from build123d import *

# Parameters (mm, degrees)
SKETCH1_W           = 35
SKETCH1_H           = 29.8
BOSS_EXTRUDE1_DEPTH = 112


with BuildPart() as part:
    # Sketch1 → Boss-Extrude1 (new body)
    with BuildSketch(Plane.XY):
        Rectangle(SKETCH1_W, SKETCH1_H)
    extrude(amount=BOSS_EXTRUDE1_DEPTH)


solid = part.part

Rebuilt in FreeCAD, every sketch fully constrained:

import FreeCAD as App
import Part
import Sketcher


def add_polygon(sketch, points):
    """Adds a closed chain of lines whose ends are joined by coincident constraints."""
    first, n = sketch.GeometryCount, len(points)
    for a, b in zip(points, points[1:] + points[:1]):
        sketch.addGeometry(Part.LineSegment(App.Vector(*a, 0), App.Vector(*b, 0)), False)
    for i in range(n):
        sketch.addConstraint(Sketcher.Constraint("Coincident", first + i, 2, first + (i + 1) % n, 1))

doc = App.newDocument("Part")
body = doc.addObject("PartDesign::Body", "Body")

# Sketch on XY plane
sketch1 = body.newObject("Sketcher::SketchObject", "Sketch")
sketch1.AttachmentSupport = (doc.getObject("XY_Plane"), [""])
sketch1.MapMode = "FlatFace"
add_polygon(sketch1, [(-18, 15), (-18, -15), (18, -15), (18, 15)])  # lines 0-3
sketch1.addConstraint(Sketcher.Constraint("Vertical", 0))
sketch1.addConstraint(Sketcher.Constraint("Horizontal", 1))
sketch1.addConstraint(Sketcher.Constraint("Vertical", 2))
sketch1.addConstraint(Sketcher.Constraint("Horizontal", 3))
sketch1.addConstraint(Sketcher.Constraint("Symmetric", 0, 2, 2, 2, -1, 1))
sketch1.addConstraint(Sketcher.Constraint("DistanceX", 1, 1, 1, 2, 35.0))
sketch1.addConstraint(Sketcher.Constraint("DistanceY", 0, 2, 0, 1, 29.8))
pad1 = body.newObject("PartDesign::Pad", "Pad")
pad1.Profile = sketch1
pad1.Length = 112

doc.recompute()
